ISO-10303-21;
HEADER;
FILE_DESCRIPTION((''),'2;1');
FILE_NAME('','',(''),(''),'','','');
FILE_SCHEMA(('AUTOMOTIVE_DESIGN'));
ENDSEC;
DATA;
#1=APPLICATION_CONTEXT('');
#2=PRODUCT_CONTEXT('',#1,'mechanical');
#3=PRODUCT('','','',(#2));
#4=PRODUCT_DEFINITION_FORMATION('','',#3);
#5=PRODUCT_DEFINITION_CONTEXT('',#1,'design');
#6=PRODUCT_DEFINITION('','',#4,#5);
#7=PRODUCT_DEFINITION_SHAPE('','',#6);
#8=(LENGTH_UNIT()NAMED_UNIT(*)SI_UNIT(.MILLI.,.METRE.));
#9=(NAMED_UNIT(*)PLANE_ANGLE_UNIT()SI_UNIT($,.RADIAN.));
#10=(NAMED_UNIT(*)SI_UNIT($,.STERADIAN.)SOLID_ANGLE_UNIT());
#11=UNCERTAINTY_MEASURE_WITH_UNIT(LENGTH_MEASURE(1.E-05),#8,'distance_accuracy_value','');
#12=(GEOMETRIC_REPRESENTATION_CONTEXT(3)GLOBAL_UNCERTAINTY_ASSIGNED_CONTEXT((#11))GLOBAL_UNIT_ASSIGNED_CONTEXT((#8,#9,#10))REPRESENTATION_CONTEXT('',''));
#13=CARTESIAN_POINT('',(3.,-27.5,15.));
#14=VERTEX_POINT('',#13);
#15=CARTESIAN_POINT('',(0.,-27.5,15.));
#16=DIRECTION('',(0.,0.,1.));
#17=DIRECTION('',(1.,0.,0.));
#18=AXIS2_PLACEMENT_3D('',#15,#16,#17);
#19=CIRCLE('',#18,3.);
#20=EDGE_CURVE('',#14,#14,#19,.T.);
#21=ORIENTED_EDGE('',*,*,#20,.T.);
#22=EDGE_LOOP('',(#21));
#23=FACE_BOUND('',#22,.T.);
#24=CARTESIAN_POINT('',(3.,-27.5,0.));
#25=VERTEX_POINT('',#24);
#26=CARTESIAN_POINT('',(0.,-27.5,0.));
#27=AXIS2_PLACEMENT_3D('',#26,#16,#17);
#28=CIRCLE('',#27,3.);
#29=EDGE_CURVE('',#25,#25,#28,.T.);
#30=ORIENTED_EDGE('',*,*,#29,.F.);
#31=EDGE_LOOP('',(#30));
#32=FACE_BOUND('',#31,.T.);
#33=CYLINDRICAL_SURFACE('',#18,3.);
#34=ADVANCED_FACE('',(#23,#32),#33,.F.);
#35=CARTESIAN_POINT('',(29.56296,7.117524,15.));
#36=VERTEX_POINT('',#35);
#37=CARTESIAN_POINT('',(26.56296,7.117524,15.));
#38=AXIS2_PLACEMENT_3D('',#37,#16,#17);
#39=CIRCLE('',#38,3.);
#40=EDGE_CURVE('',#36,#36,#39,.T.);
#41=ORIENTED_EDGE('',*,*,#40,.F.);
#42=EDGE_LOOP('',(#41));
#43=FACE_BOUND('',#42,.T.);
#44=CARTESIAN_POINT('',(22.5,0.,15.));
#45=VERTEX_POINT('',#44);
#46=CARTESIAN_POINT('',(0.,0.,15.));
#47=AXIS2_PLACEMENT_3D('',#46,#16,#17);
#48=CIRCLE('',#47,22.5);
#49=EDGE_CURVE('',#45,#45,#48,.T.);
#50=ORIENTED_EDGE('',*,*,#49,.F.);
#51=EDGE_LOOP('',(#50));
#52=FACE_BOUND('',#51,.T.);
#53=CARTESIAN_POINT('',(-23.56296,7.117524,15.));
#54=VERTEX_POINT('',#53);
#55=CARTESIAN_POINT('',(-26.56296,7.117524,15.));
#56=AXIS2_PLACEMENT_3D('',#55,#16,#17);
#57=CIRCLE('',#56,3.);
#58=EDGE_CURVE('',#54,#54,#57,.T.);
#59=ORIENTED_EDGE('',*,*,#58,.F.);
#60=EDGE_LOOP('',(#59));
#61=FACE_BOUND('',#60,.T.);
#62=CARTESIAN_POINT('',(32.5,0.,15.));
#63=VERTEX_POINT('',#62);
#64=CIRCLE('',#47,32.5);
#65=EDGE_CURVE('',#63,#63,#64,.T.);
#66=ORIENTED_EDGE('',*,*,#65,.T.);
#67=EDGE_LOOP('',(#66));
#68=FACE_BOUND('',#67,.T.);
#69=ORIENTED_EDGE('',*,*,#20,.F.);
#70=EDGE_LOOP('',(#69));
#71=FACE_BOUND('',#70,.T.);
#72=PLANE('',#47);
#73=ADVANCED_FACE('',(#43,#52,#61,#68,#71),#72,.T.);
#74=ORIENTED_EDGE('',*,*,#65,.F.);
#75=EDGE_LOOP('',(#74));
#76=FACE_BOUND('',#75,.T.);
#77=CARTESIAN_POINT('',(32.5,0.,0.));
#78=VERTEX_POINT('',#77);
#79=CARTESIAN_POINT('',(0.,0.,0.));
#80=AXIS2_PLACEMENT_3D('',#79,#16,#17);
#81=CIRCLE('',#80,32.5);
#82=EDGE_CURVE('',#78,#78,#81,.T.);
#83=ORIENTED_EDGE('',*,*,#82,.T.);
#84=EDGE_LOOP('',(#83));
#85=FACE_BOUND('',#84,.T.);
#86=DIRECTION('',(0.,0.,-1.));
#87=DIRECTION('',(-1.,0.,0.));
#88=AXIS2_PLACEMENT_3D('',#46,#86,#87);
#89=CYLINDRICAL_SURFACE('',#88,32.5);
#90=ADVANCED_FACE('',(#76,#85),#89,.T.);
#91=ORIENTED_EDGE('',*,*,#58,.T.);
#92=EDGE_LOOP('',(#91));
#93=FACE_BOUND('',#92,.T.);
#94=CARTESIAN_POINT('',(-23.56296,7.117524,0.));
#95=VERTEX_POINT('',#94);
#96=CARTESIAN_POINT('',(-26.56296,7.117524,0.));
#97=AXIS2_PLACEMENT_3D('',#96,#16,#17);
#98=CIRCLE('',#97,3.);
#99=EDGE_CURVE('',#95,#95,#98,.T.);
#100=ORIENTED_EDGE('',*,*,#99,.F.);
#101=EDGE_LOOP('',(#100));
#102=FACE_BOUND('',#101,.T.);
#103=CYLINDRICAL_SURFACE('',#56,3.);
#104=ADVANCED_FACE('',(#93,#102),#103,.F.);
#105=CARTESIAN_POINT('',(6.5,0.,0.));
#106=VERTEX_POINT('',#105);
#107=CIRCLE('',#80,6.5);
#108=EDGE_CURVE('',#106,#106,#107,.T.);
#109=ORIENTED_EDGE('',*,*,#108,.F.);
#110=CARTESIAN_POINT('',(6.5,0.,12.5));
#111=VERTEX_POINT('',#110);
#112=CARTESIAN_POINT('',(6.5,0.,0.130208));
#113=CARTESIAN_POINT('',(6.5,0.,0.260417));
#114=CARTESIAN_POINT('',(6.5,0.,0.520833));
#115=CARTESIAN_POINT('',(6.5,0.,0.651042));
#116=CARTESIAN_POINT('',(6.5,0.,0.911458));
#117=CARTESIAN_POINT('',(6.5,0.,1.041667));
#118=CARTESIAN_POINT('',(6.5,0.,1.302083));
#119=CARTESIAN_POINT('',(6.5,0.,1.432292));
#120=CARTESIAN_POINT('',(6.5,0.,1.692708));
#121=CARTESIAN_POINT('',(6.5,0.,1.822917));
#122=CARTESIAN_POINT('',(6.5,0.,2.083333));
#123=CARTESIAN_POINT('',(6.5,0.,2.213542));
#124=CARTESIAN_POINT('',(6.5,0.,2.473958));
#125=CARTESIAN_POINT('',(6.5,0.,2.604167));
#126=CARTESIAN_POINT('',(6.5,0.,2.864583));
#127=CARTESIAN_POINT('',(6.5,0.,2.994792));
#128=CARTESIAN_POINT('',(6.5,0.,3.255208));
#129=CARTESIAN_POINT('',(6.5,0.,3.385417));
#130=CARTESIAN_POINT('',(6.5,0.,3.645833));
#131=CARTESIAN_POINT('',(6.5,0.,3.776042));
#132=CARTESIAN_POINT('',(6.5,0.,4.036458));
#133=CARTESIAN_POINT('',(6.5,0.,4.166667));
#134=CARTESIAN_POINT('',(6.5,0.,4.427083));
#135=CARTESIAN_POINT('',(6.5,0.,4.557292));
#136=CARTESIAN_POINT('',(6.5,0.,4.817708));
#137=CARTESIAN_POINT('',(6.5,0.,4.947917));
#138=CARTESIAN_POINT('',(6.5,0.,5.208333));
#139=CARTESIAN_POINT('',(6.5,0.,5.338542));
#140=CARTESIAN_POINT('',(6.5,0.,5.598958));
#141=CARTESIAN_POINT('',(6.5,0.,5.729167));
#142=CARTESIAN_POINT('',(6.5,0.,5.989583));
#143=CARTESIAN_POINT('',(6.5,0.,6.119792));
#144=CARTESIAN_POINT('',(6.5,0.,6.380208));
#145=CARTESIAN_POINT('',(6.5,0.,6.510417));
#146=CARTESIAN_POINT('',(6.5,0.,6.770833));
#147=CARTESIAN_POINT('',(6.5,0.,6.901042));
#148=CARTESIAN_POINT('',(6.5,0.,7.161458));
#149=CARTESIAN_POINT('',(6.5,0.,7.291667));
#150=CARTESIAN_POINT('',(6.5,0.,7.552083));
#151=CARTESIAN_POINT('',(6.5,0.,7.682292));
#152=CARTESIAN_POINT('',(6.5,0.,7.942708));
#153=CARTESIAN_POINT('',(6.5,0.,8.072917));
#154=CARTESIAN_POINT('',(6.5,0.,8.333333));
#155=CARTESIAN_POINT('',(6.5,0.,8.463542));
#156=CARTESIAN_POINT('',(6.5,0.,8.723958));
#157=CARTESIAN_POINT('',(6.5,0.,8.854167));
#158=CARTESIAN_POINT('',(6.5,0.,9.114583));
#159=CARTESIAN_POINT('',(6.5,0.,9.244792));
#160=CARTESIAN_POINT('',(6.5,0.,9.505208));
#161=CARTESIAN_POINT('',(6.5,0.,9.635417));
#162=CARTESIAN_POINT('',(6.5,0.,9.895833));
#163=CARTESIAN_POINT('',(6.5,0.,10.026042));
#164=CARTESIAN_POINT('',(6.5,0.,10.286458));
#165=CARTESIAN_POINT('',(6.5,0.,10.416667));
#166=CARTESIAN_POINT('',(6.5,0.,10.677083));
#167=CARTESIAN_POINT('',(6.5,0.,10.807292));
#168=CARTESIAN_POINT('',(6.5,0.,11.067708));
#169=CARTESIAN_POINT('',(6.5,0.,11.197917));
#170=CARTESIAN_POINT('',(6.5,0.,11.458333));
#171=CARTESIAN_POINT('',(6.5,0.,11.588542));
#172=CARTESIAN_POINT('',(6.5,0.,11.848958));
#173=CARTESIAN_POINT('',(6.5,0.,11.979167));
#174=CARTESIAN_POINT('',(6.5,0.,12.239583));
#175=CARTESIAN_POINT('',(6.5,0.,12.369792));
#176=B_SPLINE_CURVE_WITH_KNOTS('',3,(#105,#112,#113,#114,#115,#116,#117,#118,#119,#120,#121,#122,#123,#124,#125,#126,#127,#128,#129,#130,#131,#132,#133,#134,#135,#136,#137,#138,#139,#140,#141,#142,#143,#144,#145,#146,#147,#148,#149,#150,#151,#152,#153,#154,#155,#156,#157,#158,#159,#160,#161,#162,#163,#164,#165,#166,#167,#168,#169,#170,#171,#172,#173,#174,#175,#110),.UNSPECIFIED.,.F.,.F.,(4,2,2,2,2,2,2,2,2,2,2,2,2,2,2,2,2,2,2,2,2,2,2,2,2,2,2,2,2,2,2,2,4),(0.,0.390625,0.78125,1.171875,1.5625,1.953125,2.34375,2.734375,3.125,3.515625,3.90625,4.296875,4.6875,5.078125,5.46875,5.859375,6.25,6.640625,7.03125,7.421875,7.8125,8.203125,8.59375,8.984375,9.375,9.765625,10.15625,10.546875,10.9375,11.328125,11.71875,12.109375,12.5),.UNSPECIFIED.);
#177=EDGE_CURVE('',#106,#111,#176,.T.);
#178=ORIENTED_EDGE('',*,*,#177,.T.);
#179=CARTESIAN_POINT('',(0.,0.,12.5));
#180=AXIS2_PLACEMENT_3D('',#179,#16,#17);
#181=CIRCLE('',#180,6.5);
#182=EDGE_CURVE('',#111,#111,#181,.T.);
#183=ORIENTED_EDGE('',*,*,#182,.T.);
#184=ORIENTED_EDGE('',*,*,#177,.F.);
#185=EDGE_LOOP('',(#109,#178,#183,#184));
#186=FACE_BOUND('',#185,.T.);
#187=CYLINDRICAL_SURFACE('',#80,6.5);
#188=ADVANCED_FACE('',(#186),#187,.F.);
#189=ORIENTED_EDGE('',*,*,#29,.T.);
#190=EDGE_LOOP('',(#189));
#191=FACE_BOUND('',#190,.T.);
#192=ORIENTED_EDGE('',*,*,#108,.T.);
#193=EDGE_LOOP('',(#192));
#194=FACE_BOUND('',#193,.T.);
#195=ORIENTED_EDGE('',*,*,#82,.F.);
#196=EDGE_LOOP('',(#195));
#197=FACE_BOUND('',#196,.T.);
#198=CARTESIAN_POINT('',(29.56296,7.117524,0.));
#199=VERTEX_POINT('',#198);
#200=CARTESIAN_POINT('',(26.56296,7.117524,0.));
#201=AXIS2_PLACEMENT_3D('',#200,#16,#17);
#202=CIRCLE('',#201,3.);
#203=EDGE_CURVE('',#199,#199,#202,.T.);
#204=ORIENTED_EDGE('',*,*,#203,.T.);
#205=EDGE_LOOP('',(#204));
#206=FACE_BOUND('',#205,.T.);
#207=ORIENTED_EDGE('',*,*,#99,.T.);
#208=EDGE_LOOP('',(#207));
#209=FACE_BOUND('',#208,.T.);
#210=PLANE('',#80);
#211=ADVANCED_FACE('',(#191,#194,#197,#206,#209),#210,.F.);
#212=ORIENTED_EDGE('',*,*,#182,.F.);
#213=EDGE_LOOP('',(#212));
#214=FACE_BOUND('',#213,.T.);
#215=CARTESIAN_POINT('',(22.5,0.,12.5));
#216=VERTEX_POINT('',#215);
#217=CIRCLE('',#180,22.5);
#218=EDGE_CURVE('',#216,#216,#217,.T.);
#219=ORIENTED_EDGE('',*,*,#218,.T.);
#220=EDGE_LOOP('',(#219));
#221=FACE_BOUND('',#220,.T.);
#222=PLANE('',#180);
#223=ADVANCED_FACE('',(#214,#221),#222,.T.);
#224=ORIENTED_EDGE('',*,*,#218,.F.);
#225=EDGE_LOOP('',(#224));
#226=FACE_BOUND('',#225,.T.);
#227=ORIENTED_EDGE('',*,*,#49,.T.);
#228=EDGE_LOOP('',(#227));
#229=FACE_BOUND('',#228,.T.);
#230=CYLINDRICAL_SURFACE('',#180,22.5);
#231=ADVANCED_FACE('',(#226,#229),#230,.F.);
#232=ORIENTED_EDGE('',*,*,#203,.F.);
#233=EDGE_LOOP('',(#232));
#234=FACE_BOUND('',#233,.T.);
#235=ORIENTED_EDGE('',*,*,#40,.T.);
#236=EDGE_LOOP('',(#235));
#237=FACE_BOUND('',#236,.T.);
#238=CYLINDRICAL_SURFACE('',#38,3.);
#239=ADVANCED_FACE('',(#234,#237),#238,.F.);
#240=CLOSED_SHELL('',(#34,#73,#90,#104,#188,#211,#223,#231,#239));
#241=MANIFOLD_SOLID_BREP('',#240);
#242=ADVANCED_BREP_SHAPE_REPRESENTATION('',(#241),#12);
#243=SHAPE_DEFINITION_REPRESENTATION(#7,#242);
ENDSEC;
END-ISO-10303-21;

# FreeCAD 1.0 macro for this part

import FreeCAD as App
import Part
import Sketcher
from FreeCAD import Vector
Q = App.Units.Quantity

doc = App.newDocument("Part")
body = doc.addObject("PartDesign::Body", "Body")

sketch1 = body.newObject("Sketcher::SketchObject", "Sketch")
sketch1.AttachmentSupport = (doc.getObject("XY_Plane"), [""])
sketch1.MapMode = "FlatFace"
sketch1.addGeometry(Part.Circle(Vector(0, 0, 0), Vector(0, 0, 1), 32.5), False)
sketch1.addConstraint(Sketcher.Constraint("Coincident", 0, 3, -1, 1))
sketch1.addConstraint(Sketcher.Constraint("Diameter", 0, Q("65 mm")))
pad1 = body.newObject("PartDesign::Pad", "Pad")
pad1.Profile = sketch1
pad1.Length = 15

sketch2 = body.newObject("Sketcher::SketchObject", "Sketch001")
sketch2.AttachmentSupport = (doc.getObject("XY_Plane"), [""])
sketch2.MapMode = "FlatFace"
sketch2.AttachmentOffset = App.Placement(Vector(0, 0, 15), App.Rotation())
sketch2.addGeometry(Part.Circle(Vector(0, 0, 0), Vector(0, 0, 1), 22.5), False)
sketch2.addConstraint(Sketcher.Constraint("Coincident", 0, 3, -1, 1))
sketch2.addConstraint(Sketcher.Constraint("Diameter", 0, Q("45 mm")))
pocket1 = body.newObject("PartDesign::Pocket", "Pocket")
pocket1.Profile = sketch2
pocket1.Length = 2.5

sketch3 = body.newObject("Sketcher::SketchObject", "Sketch002")
sketch3.AttachmentSupport = (doc.getObject("XY_Plane"), [""])
sketch3.MapMode = "FlatFace"
sketch3.AttachmentOffset = App.Placement(Vector(0, 0, 12.5), App.Rotation())
sketch3.addGeometry(Part.Circle(Vector(0, 0, 0), Vector(0, 0, 1), 6.5), False)
sketch3.addConstraint(Sketcher.Constraint("Coincident", 0, 3, -1, 1))
sketch3.addConstraint(Sketcher.Constraint("Diameter", 0, Q("13 mm")))
pocket2 = body.newObject("PartDesign::Pocket", "Pocket001")
pocket2.Profile = sketch3
pocket2.Type = "ThroughAll"

sketch4 = body.newObject("Sketcher::SketchObject", "Sketch003")
sketch4.AttachmentSupport = (doc.getObject("XY_Plane"), [""])
sketch4.MapMode = "FlatFace"
sketch4.AttachmentOffset = App.Placement(Vector(0, 0, 15), App.Rotation())
sketch4.addGeometry(Part.Circle(Vector(0, -27.5, 0), Vector(0, 0, 1), 3), False)
sketch4.addGeometry(Part.Circle(Vector(-26.56296, 7.117524, 0), Vector(0, 0, 1), 3), False)
sketch4.addGeometry(Part.Circle(Vector(26.56296, 7.117524, 0), Vector(0, 0, 1), 3), False)
sketch4.addConstraint(Sketcher.Constraint("Equal", 0, 1))
sketch4.addConstraint(Sketcher.Constraint("Equal", 1, 2))
sketch4.addConstraint(Sketcher.Constraint("Symmetric", 1, 3, 2, 3, -2))
sketch4.addConstraint(Sketcher.Constraint("PointOnObject", 0, 3, -2))
sketch4.addConstraint(Sketcher.Constraint("Diameter", 0, Q("6 mm")))
sketch4.addConstraint(Sketcher.Constraint("DistanceY", 0, 3, -1, 1, Q("27.5 mm")))
sketch4.addConstraint(Sketcher.Constraint("DistanceX", 1, 3, -1, 1, Q("26.56296 mm")))
sketch4.addConstraint(Sketcher.Constraint("DistanceY", -1, 1, 1, 3, Q("7.117524 mm")))
doc.recompute()
hole = body.newObject("PartDesign::Hole", "Hole")
hole.Profile = sketch4
hole.ThreadType = "None"
hole.Diameter = 6
hole.DepthType = "ThroughAll"

doc.recompute()
